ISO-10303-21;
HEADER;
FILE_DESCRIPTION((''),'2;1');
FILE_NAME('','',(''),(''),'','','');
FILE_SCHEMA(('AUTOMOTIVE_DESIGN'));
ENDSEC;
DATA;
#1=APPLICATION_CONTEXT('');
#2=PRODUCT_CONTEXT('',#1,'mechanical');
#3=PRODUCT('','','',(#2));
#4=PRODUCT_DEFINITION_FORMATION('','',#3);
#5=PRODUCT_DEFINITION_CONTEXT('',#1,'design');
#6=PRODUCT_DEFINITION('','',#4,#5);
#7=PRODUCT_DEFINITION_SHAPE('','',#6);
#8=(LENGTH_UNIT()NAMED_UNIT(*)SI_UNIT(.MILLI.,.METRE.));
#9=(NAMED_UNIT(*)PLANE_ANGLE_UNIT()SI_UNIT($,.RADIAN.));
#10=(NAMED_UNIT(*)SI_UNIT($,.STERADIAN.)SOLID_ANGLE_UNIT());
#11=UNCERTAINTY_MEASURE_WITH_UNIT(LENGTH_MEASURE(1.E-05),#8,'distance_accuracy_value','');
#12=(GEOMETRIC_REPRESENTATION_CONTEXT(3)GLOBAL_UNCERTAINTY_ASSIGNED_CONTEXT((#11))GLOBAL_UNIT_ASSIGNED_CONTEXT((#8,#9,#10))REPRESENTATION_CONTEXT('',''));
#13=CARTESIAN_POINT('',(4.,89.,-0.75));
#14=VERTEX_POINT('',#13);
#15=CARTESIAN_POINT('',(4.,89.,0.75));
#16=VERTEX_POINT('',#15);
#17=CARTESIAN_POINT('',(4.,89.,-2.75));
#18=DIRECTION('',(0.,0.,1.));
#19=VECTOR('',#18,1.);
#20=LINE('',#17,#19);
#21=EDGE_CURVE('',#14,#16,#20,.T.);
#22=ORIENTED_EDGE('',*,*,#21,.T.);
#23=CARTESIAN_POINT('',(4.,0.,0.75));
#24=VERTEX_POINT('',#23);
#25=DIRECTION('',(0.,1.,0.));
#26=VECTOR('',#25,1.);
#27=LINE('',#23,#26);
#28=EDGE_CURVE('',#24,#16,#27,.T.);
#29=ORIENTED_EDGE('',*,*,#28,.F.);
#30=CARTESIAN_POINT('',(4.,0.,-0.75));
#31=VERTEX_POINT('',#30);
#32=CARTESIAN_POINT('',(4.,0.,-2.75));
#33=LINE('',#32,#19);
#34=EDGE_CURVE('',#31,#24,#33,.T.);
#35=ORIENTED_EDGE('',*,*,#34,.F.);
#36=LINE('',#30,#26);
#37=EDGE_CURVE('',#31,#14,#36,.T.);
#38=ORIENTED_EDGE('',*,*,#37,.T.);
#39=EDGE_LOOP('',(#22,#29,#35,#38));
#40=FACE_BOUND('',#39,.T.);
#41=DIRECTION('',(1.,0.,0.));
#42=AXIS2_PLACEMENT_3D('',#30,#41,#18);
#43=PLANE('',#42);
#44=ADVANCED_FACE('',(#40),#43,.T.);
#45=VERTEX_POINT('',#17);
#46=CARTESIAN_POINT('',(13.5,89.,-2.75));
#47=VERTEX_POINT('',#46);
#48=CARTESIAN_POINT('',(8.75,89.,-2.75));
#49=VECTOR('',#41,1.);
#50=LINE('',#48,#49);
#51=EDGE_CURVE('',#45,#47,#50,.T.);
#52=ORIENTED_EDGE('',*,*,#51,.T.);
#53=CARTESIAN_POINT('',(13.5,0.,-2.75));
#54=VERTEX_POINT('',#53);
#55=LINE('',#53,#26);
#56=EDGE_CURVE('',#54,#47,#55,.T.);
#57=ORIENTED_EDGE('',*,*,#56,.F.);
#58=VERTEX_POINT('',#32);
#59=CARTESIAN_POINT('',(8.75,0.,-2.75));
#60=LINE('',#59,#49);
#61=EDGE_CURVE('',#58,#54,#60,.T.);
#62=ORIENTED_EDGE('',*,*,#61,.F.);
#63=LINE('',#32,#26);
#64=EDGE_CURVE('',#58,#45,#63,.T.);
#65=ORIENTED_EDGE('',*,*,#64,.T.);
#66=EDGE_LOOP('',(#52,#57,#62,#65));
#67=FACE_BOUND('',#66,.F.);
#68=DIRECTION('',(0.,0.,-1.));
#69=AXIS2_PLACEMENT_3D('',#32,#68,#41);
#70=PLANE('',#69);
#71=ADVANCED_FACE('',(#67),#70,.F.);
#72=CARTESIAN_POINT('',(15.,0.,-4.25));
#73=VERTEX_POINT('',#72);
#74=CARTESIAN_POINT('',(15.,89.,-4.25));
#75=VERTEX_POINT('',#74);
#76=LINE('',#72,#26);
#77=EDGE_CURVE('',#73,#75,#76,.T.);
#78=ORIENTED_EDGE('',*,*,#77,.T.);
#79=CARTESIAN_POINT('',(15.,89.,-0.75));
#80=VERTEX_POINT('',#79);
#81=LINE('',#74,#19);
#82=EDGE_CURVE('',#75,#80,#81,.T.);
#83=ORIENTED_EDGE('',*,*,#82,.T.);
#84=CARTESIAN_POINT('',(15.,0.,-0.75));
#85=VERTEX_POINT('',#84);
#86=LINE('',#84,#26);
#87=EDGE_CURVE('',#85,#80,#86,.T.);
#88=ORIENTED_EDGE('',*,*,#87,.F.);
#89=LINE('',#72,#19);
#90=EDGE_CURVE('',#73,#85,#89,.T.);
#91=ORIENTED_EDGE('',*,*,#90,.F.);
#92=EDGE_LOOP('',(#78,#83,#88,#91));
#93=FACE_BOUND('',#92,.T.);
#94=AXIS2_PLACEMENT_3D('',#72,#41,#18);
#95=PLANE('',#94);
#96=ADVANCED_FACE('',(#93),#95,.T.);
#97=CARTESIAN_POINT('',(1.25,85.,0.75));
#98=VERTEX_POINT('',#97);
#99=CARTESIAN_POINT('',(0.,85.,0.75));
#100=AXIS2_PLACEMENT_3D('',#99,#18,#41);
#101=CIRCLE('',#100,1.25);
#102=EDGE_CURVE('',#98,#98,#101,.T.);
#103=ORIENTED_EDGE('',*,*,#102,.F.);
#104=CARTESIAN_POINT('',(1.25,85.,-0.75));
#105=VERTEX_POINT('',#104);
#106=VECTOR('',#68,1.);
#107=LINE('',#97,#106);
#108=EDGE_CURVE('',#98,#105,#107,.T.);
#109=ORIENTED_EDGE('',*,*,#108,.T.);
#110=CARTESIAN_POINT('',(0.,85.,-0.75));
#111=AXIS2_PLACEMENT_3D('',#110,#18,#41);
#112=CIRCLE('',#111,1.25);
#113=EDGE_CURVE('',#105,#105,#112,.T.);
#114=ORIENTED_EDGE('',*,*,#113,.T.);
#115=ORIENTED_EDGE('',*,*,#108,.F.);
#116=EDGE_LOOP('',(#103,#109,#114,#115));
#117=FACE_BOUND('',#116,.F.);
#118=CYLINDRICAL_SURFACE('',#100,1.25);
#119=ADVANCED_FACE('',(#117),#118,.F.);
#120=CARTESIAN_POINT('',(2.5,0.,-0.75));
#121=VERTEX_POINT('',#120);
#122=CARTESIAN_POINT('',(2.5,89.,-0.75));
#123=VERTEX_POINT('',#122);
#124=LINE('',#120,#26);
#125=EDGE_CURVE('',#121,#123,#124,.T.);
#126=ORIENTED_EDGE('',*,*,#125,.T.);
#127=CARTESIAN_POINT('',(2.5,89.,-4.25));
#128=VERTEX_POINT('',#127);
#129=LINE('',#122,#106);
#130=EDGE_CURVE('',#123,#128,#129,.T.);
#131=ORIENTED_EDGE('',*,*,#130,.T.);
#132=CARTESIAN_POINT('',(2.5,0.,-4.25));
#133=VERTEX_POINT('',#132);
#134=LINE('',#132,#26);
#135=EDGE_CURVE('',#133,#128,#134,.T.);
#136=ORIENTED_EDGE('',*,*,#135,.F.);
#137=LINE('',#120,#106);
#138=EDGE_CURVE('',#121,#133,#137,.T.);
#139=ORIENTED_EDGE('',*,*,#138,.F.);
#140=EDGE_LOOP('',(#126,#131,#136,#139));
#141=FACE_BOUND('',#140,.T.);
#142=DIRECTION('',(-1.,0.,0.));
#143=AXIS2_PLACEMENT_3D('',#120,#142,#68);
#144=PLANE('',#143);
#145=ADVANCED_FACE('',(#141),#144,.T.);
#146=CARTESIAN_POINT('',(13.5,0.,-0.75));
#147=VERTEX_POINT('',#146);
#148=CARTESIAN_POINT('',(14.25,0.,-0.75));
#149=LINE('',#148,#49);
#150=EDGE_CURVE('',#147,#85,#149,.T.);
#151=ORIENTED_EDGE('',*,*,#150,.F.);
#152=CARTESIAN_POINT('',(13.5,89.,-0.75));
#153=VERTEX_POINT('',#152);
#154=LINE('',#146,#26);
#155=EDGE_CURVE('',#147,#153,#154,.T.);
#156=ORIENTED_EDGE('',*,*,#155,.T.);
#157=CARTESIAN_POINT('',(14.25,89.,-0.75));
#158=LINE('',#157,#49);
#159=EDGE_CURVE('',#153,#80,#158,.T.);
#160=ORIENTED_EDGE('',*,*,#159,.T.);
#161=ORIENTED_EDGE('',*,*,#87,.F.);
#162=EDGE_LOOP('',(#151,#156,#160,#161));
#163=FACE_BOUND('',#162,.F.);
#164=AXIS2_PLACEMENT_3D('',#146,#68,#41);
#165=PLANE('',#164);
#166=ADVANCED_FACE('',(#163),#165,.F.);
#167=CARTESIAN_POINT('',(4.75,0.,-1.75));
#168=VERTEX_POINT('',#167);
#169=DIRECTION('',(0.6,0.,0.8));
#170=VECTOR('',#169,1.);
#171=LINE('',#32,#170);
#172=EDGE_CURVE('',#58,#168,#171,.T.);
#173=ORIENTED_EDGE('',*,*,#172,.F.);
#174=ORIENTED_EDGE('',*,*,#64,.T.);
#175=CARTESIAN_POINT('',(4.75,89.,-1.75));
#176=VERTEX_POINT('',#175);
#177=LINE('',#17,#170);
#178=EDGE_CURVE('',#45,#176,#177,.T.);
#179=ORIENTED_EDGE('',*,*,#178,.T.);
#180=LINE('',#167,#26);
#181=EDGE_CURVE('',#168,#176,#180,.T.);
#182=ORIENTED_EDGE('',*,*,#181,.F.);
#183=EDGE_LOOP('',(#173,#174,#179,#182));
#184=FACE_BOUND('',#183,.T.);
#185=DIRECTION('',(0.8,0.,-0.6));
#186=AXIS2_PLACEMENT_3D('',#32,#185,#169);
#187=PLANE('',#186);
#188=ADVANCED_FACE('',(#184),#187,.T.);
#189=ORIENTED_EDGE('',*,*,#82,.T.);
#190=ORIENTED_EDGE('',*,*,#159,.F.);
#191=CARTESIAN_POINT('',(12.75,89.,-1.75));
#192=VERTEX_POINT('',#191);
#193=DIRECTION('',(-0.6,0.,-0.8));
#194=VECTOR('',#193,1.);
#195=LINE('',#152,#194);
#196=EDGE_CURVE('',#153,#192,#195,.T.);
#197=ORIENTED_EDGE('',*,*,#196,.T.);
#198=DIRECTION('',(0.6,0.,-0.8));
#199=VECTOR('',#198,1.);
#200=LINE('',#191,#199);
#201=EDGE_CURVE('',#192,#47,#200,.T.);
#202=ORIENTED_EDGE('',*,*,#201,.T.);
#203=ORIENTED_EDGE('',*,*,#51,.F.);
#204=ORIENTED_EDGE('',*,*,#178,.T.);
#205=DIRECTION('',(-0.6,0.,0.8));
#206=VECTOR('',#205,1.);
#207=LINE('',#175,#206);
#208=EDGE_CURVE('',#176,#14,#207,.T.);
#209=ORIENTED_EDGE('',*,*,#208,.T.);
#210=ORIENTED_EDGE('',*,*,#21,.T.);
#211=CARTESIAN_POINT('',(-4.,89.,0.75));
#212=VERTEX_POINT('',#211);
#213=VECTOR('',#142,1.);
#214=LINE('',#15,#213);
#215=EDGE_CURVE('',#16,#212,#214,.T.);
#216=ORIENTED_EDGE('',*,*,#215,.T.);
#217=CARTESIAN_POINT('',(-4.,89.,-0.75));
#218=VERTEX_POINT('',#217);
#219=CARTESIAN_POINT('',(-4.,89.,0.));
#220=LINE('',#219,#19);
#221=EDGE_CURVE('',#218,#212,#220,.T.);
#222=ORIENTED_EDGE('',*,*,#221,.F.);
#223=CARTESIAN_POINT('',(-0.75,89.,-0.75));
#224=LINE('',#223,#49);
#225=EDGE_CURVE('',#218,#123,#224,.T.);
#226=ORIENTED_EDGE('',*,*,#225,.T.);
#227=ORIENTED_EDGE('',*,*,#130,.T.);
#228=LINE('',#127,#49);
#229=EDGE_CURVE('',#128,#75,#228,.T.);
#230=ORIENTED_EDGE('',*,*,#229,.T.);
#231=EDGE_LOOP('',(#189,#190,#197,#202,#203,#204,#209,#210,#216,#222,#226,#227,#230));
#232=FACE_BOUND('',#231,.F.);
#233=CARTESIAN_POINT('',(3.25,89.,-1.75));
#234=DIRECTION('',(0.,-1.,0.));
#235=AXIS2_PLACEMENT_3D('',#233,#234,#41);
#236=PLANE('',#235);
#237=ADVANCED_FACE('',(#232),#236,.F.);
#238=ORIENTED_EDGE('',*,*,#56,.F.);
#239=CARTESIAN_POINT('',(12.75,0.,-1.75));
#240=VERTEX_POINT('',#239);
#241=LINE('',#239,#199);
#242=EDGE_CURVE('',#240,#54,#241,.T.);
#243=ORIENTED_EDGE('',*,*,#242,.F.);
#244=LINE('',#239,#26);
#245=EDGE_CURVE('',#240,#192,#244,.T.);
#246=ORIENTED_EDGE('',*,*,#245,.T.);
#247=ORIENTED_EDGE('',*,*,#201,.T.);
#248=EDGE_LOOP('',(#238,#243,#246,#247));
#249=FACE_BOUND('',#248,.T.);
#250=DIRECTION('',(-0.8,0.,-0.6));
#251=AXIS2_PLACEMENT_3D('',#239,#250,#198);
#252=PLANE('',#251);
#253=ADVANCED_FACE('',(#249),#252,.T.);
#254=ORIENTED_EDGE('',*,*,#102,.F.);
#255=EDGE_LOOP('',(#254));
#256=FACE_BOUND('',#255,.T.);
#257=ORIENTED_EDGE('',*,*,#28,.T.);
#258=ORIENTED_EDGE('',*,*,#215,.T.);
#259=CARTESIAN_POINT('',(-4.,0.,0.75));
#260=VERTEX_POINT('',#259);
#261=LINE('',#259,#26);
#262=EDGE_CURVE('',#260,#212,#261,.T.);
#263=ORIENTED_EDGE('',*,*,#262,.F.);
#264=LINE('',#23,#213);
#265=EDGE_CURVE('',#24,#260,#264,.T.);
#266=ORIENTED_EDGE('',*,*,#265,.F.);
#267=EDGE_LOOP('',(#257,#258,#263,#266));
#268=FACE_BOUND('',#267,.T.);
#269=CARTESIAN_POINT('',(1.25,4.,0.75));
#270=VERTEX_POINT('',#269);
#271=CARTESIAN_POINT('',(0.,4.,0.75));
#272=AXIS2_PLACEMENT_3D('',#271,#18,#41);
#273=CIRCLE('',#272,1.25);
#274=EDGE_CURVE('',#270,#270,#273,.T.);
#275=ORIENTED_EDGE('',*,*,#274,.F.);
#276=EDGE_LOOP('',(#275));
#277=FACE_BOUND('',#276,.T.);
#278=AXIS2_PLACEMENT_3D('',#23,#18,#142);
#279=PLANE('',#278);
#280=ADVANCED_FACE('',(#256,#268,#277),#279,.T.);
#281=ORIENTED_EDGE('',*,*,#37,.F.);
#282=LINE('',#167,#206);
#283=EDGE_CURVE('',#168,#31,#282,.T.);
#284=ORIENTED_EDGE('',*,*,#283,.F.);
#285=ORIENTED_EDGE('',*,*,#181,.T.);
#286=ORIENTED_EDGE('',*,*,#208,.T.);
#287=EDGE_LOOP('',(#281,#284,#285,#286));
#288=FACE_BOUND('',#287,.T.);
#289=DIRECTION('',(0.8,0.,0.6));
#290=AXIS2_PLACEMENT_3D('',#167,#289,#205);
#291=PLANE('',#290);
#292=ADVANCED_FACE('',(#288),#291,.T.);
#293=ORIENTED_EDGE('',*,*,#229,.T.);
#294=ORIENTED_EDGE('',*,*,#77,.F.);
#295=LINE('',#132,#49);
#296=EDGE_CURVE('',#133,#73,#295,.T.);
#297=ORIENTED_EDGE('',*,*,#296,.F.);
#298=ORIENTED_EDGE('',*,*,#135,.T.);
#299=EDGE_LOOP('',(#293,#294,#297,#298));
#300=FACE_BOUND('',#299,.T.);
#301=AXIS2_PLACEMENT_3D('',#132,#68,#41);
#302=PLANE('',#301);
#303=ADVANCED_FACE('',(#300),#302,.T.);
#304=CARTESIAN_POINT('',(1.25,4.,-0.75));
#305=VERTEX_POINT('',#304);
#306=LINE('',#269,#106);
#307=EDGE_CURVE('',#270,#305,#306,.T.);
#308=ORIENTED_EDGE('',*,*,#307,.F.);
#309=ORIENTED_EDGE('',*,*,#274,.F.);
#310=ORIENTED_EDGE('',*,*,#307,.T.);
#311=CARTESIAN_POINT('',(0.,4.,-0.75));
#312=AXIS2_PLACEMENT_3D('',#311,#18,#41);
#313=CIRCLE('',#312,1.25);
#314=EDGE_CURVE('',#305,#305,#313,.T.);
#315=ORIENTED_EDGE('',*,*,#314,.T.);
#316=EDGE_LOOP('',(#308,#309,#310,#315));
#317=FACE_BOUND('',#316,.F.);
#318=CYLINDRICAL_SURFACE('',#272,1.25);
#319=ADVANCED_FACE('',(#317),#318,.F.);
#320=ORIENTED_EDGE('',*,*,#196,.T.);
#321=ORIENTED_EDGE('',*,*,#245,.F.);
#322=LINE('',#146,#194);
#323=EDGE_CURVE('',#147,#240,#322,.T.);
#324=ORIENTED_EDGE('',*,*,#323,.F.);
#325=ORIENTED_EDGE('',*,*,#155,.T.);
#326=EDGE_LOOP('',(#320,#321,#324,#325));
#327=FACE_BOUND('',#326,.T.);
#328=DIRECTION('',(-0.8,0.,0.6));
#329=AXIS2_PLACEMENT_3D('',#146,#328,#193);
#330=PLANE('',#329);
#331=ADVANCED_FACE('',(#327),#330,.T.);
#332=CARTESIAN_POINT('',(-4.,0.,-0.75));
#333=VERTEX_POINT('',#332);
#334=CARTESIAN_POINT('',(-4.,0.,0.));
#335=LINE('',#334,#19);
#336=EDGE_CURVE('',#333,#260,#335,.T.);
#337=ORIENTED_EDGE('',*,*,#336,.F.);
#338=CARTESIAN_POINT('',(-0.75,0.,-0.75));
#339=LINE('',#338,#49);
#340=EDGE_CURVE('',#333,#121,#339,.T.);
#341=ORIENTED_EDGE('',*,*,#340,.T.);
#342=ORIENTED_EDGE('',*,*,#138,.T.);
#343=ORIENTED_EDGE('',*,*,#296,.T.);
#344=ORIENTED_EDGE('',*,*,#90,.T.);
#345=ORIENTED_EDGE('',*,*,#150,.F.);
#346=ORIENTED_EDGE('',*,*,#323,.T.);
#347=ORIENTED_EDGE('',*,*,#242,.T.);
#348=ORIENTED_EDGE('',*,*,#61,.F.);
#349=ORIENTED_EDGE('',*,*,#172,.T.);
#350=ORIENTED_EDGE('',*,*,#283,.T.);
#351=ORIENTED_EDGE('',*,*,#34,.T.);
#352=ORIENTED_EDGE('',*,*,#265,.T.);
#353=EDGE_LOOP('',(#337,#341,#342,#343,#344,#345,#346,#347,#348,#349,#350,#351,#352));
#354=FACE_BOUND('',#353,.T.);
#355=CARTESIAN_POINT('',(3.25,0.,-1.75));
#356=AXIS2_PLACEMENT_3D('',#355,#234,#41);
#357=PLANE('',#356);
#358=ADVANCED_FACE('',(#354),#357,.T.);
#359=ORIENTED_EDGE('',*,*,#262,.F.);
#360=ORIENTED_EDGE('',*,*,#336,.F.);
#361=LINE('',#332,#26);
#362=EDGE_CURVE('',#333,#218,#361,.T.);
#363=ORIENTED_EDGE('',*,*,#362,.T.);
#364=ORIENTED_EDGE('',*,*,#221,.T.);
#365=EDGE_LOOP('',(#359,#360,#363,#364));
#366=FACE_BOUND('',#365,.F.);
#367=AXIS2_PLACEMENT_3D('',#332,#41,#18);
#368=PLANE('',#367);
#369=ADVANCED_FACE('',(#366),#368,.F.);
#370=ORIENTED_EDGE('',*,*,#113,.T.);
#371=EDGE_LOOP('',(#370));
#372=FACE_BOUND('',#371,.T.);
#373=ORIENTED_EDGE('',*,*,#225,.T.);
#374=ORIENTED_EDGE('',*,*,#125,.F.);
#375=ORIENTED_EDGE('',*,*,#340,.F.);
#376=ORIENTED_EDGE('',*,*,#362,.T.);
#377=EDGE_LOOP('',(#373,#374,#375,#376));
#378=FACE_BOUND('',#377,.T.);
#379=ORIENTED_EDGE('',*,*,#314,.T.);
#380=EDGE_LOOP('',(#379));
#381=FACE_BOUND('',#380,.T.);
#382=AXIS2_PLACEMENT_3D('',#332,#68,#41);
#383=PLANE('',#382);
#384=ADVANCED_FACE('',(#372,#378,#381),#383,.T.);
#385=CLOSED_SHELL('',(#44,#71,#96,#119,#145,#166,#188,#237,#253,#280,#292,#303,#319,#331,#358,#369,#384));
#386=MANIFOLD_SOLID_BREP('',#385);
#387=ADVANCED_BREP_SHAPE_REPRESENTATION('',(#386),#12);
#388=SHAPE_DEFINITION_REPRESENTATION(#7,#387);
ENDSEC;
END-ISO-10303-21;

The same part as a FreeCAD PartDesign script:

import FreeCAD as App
import Part
import Sketcher
Q = App.Units.Quantity


def add_polygon(sketch, points):
    """Adds a closed chain of lines whose ends are joined by coincident constraints."""
    first, n = sketch.GeometryCount, len(points)
    for a, b in zip(points, points[1:] + points[:1]):
        sketch.addGeometry(Part.LineSegment(App.Vector(*a, 0), App.Vector(*b, 0)), False)
    for i in range(n):
        sketch.addConstraint(Sketcher.Constraint("Coincident", first + i, 2, first + (i + 1) % n, 1))

doc = App.newDocument("Part")
body = doc.addObject("PartDesign::Body", "Body")

sketch1 = body.newObject("Sketcher::SketchObject", "Sketch")
sketch1.AttachmentSupport = (doc.getObject("XZ_Plane"), [""])
sketch1.MapMode = "FlatFace"
add_polygon(sketch1, [(4, -2.75), (4.75, -1.75), (4, -0.75), (4, 0.75), (-4, 0.75), (-4, -0.75), (2.5, -0.75), (2.5, -4.25), (15, -4.25), (15, -0.75), (13.5, -0.75), (12.75, -1.75), (13.5, -2.75)])
sketch1.addConstraint([
    Sketcher.Constraint("Vertical", 2),
    Sketcher.Constraint("Horizontal", 3),
    Sketcher.Constraint("Vertical", 4),
    Sketcher.Constraint("Horizontal", 5),
    Sketcher.Constraint("Vertical", 6),
    Sketcher.Constraint("Horizontal", 7),
    Sketcher.Constraint("Vertical", 8),
    Sketcher.Constraint("Horizontal", 9),
    Sketcher.Constraint("Horizontal", 12),
    Sketcher.Constraint("Symmetric", 1, 2, 3, 2, -1, 1),
    Sketcher.Constraint("Parallel", 0, 10),
    Sketcher.Constraint("Parallel", 1, 11),
    Sketcher.Constraint("Horizontal", 1, 2, 4, 2),
    Sketcher.Constraint("Horizontal", 5, 2, 8, 2),
    Sketcher.Constraint("Horizontal", 0, 2, 10, 2),
    Sketcher.Constraint("Vertical", 9, 2, 11, 2),
    Sketcher.Constraint("Vertical", 2, 2, 12, 2),
    Sketcher.Constraint("Equal", 9, 2),
    Sketcher.Constraint("DistanceX", 3, 2, 3, 1, Q("8 mm")),
    Sketcher.Constraint("DistanceX", 5, 1, 5, 2, Q("6.5 mm")),
    Sketcher.Constraint("DistanceX", 7, 1, 7, 2, Q("12.5 mm")),
    Sketcher.Constraint("DistanceX", 9, 2, 9, 1, Q("1.5 mm")),
    Sketcher.Constraint("DistanceY", 6, 2, 6, 1, Q("3.5 mm")),
    Sketcher.Constraint("DistanceY", 0, 2, 1, 2, Q("1 mm")),
    Sketcher.Constraint("DistanceX", 0, 2, 10, 2, Q("8 mm")),
])
pad1 = body.newObject("PartDesign::Pad", "Pad")
pad1.Profile = sketch1
pad1.Length = 89
pad1.Reversed = True

sketch2 = body.newObject("Sketcher::SketchObject", "Sketch001")
sketch2.AttachmentSupport = (doc.getObject("XY_Plane"), [""])
sketch2.MapMode = "FlatFace"
sketch2.AttachmentOffset = App.Placement(App.Vector(0, 0, 0.75), App.Rotation())
sketch2.addGeometry([
    Part.Circle(App.Vector(0, 4, 0), App.Vector(0, 0, 1), 1.25),
    Part.Circle(App.Vector(0, 85, 0), App.Vector(0, 0, 1), 1.25),
], False)
sketch2.addConstraint([
    Sketcher.Constraint("Equal", 0, 1),
    Sketcher.Constraint("PointOnObject", 0, 3, -2),
    Sketcher.Constraint("PointOnObject", 1, 3, -2),
    Sketcher.Constraint("Diameter", 0, Q("2.5 mm")),
    Sketcher.Constraint("DistanceY", -1, 1, 0, 3, Q("4 mm")),
    Sketcher.Constraint("DistanceY", -1, 1, 1, 3, Q("85 mm")),
])
pocket1 = body.newObject("PartDesign::Pocket", "Pocket")
pocket1.Profile = sketch2
pocket1.Length = 25

doc.recompute()
